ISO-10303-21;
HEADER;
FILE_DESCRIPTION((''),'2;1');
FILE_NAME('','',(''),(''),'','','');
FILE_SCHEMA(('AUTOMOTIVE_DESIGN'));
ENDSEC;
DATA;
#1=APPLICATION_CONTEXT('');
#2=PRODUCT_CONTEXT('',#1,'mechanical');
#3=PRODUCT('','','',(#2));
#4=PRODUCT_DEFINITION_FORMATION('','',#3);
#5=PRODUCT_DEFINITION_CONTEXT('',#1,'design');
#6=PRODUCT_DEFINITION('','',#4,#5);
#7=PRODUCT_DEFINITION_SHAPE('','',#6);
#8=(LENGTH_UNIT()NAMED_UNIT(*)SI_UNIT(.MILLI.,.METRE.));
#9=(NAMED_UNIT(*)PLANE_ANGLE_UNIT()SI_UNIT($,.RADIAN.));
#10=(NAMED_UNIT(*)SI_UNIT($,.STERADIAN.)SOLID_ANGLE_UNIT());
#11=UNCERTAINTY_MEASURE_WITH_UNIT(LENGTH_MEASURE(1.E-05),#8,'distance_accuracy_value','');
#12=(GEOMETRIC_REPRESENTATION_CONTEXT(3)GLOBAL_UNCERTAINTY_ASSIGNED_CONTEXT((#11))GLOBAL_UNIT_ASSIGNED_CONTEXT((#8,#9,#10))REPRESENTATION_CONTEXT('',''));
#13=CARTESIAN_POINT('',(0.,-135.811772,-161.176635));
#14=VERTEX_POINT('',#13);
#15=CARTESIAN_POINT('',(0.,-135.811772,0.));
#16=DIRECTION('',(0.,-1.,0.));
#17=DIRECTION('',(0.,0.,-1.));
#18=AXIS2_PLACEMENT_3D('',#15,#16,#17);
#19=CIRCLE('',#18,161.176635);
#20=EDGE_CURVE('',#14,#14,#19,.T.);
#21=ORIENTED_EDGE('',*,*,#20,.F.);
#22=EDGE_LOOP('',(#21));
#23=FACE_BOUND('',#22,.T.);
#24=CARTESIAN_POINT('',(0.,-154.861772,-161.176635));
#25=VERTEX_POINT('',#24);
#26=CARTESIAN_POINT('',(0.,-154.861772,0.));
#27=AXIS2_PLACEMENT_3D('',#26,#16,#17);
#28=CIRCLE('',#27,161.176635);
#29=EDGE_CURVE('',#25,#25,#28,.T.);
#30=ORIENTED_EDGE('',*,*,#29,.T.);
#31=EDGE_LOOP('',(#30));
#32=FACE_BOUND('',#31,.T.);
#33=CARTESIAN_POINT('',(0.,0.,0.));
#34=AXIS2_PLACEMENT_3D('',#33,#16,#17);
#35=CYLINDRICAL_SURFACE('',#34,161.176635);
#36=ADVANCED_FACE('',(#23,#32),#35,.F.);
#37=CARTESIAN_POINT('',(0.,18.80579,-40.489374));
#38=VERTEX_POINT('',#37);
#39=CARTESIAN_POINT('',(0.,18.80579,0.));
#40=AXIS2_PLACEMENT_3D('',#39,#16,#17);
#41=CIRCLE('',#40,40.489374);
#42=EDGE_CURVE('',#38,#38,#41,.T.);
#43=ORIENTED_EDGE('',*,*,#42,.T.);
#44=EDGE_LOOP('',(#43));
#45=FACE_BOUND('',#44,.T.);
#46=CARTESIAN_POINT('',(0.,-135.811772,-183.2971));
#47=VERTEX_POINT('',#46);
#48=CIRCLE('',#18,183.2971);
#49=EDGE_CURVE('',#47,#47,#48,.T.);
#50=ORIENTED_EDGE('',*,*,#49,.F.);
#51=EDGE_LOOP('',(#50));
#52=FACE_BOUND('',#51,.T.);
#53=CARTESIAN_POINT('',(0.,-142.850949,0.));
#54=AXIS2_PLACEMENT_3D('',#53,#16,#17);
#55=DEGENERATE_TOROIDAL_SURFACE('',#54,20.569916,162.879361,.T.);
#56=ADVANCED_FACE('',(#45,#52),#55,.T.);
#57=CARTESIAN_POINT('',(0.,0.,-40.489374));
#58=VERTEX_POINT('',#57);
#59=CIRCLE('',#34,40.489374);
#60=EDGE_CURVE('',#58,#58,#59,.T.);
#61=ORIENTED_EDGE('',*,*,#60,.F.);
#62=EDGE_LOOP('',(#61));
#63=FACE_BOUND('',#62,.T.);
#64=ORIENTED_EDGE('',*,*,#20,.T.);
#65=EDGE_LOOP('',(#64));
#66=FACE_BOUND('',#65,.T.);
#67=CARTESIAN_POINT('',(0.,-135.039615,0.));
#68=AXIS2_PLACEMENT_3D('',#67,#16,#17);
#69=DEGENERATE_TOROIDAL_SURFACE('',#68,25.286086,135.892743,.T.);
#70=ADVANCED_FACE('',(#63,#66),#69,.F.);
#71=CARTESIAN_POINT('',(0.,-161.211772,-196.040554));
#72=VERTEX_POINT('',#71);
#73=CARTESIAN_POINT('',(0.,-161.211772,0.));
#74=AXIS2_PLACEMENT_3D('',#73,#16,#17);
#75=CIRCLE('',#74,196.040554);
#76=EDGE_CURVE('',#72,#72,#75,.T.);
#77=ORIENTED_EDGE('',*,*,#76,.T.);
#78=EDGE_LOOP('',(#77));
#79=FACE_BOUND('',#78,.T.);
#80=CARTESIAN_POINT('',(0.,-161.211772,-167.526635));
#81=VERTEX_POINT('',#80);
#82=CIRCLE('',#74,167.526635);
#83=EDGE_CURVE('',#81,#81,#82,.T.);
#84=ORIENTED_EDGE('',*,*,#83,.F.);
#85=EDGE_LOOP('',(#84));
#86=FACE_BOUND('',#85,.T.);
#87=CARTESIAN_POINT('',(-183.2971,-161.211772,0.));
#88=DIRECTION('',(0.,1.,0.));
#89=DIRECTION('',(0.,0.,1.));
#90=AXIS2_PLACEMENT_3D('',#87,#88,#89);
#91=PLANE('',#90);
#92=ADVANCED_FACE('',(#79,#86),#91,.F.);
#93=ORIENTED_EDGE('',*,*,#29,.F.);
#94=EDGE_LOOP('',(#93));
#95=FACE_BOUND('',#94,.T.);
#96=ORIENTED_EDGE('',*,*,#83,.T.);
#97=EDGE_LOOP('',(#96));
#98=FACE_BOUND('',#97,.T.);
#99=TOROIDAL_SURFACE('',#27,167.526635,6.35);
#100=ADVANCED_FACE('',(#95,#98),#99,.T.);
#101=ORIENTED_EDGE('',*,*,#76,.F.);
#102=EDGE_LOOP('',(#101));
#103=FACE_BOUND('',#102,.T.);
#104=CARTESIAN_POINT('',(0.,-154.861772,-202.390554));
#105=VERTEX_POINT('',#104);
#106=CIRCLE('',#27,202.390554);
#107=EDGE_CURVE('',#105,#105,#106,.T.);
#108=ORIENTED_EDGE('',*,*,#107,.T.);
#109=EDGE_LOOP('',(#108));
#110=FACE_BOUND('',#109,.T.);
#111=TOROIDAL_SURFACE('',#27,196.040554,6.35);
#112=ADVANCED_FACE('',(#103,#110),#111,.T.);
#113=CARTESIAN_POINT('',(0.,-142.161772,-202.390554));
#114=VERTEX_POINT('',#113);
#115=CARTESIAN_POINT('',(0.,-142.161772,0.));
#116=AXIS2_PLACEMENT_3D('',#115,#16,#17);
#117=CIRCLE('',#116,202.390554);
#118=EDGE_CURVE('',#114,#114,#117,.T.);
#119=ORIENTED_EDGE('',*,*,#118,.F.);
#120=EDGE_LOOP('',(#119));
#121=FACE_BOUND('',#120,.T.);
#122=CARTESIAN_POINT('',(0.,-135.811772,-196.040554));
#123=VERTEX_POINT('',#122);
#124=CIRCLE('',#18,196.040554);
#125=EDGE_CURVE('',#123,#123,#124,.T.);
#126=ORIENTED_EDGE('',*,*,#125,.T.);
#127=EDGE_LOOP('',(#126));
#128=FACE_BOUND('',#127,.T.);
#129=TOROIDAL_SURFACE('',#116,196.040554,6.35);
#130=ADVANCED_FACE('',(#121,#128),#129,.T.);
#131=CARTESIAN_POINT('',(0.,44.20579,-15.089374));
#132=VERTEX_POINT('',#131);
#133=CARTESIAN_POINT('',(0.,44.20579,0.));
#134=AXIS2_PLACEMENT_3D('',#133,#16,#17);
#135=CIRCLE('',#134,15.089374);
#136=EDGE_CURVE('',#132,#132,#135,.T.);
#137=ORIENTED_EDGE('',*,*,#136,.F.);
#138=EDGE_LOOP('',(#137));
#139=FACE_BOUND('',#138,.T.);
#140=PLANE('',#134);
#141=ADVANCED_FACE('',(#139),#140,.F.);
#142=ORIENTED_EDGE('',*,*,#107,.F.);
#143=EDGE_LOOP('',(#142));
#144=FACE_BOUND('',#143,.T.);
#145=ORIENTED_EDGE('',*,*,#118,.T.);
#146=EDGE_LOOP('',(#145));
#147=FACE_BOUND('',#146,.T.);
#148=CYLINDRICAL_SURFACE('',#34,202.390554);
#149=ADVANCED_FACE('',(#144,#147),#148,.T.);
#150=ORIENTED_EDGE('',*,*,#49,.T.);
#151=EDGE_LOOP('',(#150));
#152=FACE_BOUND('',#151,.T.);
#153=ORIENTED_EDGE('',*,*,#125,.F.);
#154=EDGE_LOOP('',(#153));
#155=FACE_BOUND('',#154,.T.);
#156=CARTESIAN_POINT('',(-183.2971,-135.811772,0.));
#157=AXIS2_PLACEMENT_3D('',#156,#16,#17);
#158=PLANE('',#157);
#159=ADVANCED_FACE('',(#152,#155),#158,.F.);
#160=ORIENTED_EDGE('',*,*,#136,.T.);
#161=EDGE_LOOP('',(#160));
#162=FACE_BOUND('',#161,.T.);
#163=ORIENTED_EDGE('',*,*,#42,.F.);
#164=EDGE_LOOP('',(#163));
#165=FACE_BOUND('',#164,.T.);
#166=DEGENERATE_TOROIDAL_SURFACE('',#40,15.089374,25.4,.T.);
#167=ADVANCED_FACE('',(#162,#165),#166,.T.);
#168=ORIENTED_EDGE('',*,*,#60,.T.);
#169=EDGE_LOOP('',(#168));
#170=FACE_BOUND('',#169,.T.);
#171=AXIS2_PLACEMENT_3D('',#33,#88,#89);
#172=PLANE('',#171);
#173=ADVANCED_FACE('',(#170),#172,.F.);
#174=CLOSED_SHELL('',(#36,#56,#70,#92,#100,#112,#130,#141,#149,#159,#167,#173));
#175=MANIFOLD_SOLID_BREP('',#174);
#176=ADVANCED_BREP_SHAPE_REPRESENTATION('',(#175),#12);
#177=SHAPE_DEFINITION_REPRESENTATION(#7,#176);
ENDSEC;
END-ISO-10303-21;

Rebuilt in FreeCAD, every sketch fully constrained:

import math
import FreeCAD as App
import Part
import Sketcher
Q = App.Units.Quantity

doc = App.newDocument("Part")
params = doc.addObject("Spreadsheet::Sheet", "Params")
for row, (alias, value) in enumerate([
    ("sketch1_radius", "1 in"),
    ("sketch1_radius2", "0.25 in"),
    ("sketch1_height", "0.5 in"),
    ("revolution_angle", "360 deg"),
], start=1):
    params.set(f"A{row}", alias)
    params.set(f"B{row}", "=" + value)
    params.setAlias(f"B{row}", alias)

body = doc.addObject("PartDesign::Body", "Body")

# Sketch on XY plane
sketch1 = body.newObject("Sketcher::SketchObject", "Sketch")
sketch1.AttachmentSupport = (doc.getObject("XY_Plane"), [""])
sketch1.MapMode = "FlatFace"
sketch1.addGeometry(Part.ArcOfCircle(Part.Circle(App.Vector(-168, -155, 0), App.Vector(0, 0, 1), 6), math.radians(-90), math.radians(0)), False)
sketch1.addGeometry(Part.LineSegment(App.Vector(-161, -155, 0), App.Vector(-161, -136, 0)), False)
sketch1.addGeometry(Part.ArcOfCircle(Part.Circle(App.Vector(-25, -135, 0), App.Vector(0, 0, 1), 136), math.radians(96), math.radians(180)), False)
sketch1.addGeometry(Part.LineSegment(App.Vector(-40, 0, 0), App.Vector(0, 0, 0)), False)
sketch1.addGeometry(Part.LineSegment(App.Vector(0, 0, 0), App.Vector(0, 44, 0)), False)
sketch1.addGeometry(Part.LineSegment(App.Vector(0, 44, 0), App.Vector(-15, 44, 0)), False)
sketch1.addGeometry(Part.ArcOfCircle(Part.Circle(App.Vector(-15, 19, 0), App.Vector(0, 0, 1), 25), math.radians(90), math.radians(180)), False)
sketch1.addGeometry(Part.ArcOfCircle(Part.Circle(App.Vector(-21, -143, 0), App.Vector(0, 0, 1), 163), math.radians(97), math.radians(178)), False)
sketch1.addGeometry(Part.LineSegment(App.Vector(-183, -136, 0), App.Vector(-196, -136, 0)), False)
sketch1.addGeometry(Part.ArcOfCircle(Part.Circle(App.Vector(-196, -142, 0), App.Vector(0, 0, 1), 6), math.radians(90), math.radians(180)), False)
sketch1.addGeometry(Part.LineSegment(App.Vector(-202, -142, 0), App.Vector(-202, -155, 0)), False)
sketch1.addGeometry(Part.ArcOfCircle(Part.Circle(App.Vector(-196, -155, 0), App.Vector(0, 0, 1), 6), math.radians(180), math.radians(270)), False)
sketch1.addGeometry(Part.LineSegment(App.Vector(-196, -161, 0), App.Vector(-168, -161, 0)), False)
sketch1.addConstraint(Sketcher.Constraint("Tangent", 0, 2, 1, 1))
sketch1.addConstraint(Sketcher.Constraint("Coincident", 1, 2, 2, 2))
sketch1.addConstraint(Sketcher.Constraint("Coincident", 2, 1, 3, 1))
sketch1.addConstraint(Sketcher.Constraint("Coincident", 3, 2, 4, 1))
sketch1.addConstraint(Sketcher.Constraint("Coincident", 4, 2, 5, 1))
sketch1.addConstraint(Sketcher.Constraint("Tangent", 5, 2, 6, 1))
sketch1.addConstraint(Sketcher.Constraint("Coincident", 6, 2, 7, 1))
sketch1.addConstraint(Sketcher.Constraint("Coincident", 7, 2, 8, 1))
sketch1.addConstraint(Sketcher.Constraint("Tangent", 8, 2, 9, 1))
sketch1.addConstraint(Sketcher.Constraint("Tangent", 9, 2, 10, 1))
sketch1.addConstraint(Sketcher.Constraint("Tangent", 10, 2, 11, 1))
sketch1.addConstraint(Sketcher.Constraint("Tangent", 11, 2, 12, 1))
sketch1.addConstraint(Sketcher.Constraint("Tangent", 12, 2, 0, 1))
sketch1.addConstraint(Sketcher.Constraint("Vertical", 1))
sketch1.addConstraint(Sketcher.Constraint("Horizontal", 3))
sketch1.addConstraint(Sketcher.Constraint("Vertical", 4))
sketch1.addConstraint(Sketcher.Constraint("Horizontal", 5))
sketch1.addConstraint(Sketcher.Constraint("Horizontal", 8))
sketch1.addConstraint(Sketcher.Constraint("Vertical", 10))
sketch1.addConstraint(Sketcher.Constraint("Horizontal", 12))
sketch1.addConstraint(Sketcher.Constraint("Coincident", 3, 2, -1, 1))
sketch1.addConstraint(Sketcher.Constraint("Equal", 0, 9))
sketch1.addConstraint(Sketcher.Constraint("Equal", 9, 11))
sketch1.addConstraint(Sketcher.Constraint("Horizontal", 1, 2, 7, 2))
sketch1.addConstraint(Sketcher.Constraint("Vertical", 2, 1, 6, 2))
sketch1.addConstraint(Sketcher.Constraint("Radius", 6, Q("1 in")))
sketch1.addConstraint(Sketcher.Constraint("Radius", 0, Q("0.25 in")))
sketch1.addConstraint(Sketcher.Constraint("DistanceY", 10, 2, 10, 1, Q("0.5 in")))
sketch1.addConstraint(Sketcher.Constraint("DistanceY", 6, 2, 5, 2, Q("1 in")))
sketch1.addConstraint(Sketcher.Constraint("Radius", 7, 162.879361))
sketch1.addConstraint(Sketcher.Constraint("Radius", 2, 135.892743))
sketch1.addConstraint(Sketcher.Constraint("DistanceY", 0, 3, 2, 3, Q("0.7803999 in")))
sketch1.addConstraint(Sketcher.Constraint("DistanceX", 12, 1, 12, 2, 28.513919))
sketch1.addConstraint(Sketcher.Constraint("DistanceY", 4, 1, 4, 2, 44.20579))
sketch1.addConstraint(Sketcher.Constraint("DistanceX", 7, 2, -1, 1, 183.2971))
sketch1.addConstraint(Sketcher.Constraint("DistanceX", 3, 1, 3, 2, 40.489374))
sketch1.addConstraint(Sketcher.Constraint("DistanceX", 8, 2, 8, 1, 12.743454))
sketch1.setExpression("Constraints[25]", "Params.sketch1_radius")
sketch1.setExpression("Constraints[26]", "Params.sketch1_radius2")
sketch1.setExpression("Constraints[27]", "Params.sketch1_height")
revolution = body.newObject("PartDesign::Revolution", "Revolution")
revolution.Profile = sketch1
revolution.ReferenceAxis = (sketch1, ["V_Axis"])
revolution.setExpression("Angle", "Params.revolution_angle")

doc.recompute()
